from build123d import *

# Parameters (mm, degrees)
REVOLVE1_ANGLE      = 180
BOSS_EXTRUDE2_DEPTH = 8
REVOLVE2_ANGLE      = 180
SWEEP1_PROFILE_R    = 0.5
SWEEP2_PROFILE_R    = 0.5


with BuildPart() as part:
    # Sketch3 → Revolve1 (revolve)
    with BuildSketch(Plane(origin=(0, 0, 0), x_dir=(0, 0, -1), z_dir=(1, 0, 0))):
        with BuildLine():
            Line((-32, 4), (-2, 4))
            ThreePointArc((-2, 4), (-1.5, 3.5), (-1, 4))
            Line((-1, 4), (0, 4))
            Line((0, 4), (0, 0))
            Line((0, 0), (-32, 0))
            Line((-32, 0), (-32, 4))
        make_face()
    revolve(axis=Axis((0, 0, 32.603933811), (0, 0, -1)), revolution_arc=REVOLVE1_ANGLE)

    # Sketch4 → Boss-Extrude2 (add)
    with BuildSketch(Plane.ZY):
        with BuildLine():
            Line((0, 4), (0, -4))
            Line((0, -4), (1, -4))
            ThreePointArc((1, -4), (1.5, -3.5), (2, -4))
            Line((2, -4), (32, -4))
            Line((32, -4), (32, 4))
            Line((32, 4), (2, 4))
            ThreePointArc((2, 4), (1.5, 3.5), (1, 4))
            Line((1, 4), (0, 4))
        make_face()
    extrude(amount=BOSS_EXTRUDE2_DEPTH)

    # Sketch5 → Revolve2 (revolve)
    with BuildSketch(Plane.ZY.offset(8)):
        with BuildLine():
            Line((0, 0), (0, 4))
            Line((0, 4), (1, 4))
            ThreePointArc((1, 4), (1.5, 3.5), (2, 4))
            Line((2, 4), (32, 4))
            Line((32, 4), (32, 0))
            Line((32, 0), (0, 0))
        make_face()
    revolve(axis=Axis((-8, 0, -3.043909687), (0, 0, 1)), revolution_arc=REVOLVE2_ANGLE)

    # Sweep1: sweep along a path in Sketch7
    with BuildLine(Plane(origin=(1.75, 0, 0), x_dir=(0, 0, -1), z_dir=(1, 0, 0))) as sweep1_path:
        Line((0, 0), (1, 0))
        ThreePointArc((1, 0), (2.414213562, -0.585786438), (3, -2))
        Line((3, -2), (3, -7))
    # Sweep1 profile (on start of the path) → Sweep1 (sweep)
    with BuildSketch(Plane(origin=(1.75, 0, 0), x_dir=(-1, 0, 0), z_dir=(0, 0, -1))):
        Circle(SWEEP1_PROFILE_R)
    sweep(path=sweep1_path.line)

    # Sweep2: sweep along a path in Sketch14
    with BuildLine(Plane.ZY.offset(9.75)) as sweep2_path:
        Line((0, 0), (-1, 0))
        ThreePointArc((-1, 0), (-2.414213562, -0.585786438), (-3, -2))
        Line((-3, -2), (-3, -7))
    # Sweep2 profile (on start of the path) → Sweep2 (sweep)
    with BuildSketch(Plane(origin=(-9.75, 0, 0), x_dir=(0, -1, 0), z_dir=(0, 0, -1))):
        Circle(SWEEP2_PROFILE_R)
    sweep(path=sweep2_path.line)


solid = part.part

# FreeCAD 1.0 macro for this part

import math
import FreeCAD as App
import Part
import Sketcher

doc = App.newDocument("Part")
params = doc.addObject("Spreadsheet::Sheet", "Params")
for row, (alias, value) in enumerate([
    ("sketch1_radius", "0.5 mm"),
    ("sketch1_width", "4 mm"),
    ("sketch1_height", "30 mm"),
    ("sketch1_height2", "32 mm"),
    ("revolution_angle", "180 deg"),
    ("sketch2_radius", "0.5 mm"),
    ("sketch2_width", "8 mm"),
    ("sketch2_height", "1 mm"),
    ("sketch2_height2", "30 mm"),
    ("pad1_length", "8 mm"),
    ("sketch3_radius", "0.5 mm"),
    ("sketch3_width", "4 mm"),
    ("sketch3_height", "32 mm"),
    ("sketch3_height2", "30 mm"),
    ("revolution2_angle", "180 deg"),
    ("sketch4_diameter", "1 mm"),
    ("sketch5_radius", "2 mm"),
    ("sketch5_width", "5 mm"),
    ("sketch5_height", "1 mm"),
    ("sketch6_diameter", "1 mm"),
    ("sketch7_radius", "2 mm"),
    ("sketch7_width", "5 mm"),
    ("sketch7_height", "1 mm"),
], start=1):
    params.set(f"A{row}", alias)
    params.set(f"B{row}", "=" + value)
    params.setAlias(f"B{row}", alias)

body = doc.addObject("PartDesign::Body", "Body")

# Sketch on YZ plane
sketch1 = doc.addObject("Sketcher::SketchObject", "Sketch")
body.addObject(sketch1)
sketch1.AttachmentSupport = (doc.YZ_Plane, [""])
sketch1.MapMode = "FlatFace"
sketch1.addGeometry([
    Part.LineSegment(App.Vector(4, 2, 0), App.Vector(4, 32, 0)),  # 0
    Part.LineSegment(App.Vector(4, 32, 0), App.Vector(0, 32, 0)),  # 1
    Part.LineSegment(App.Vector(0, 32, 0), App.Vector(0, 0, 0)),  # 2
    Part.LineSegment(App.Vector(0, 0, 0), App.Vector(4, 0, 0)),  # 3
    Part.LineSegment(App.Vector(4, 0, 0), App.Vector(4, 1, 0)),  # 4
    Part.ArcOfCircle(Part.Circle(App.Vector(4, 1.5, 0), App.Vector(0, 0, 1), 0.5), math.radians(90), math.radians(270)),  # 5
], False)
sketch1.addConstraint([
    Sketcher.Constraint("Coincident", 0, 2, 1, 1),
    Sketcher.Constraint("Coincident", 1, 2, 2, 1),
    Sketcher.Constraint("Coincident", 2, 2, 3, 1),
    Sketcher.Constraint("Coincident", 3, 2, 4, 1),
    Sketcher.Constraint("Coincident", 4, 2, 5, 2),
    Sketcher.Constraint("Coincident", 5, 1, 0, 1),
    Sketcher.Constraint("Vertical", 0),
    Sketcher.Constraint("Horizontal", 1),
    Sketcher.Constraint("Vertical", 2),
    Sketcher.Constraint("Horizontal", 3),
    Sketcher.Constraint("Vertical", 4),
    Sketcher.Constraint("Coincident", 2, 2, -1, 1),
    Sketcher.Constraint("Vertical", 5, 3, 0, 2),
    Sketcher.Constraint("Vertical", 0, 2, 3, 2),
    Sketcher.Constraint("Radius", 5, 0.5),
    Sketcher.Constraint("DistanceX", 1, 2, 1, 1, 4.0),
    Sketcher.Constraint("DistanceY", 0, 1, 0, 2, 30.0),
    Sketcher.Constraint("DistanceY", 2, 2, 2, 1, 32.0),
])
sketch1.setExpression("Constraints[14]", "Params.sketch1_radius")
sketch1.setExpression("Constraints[15]", "Params.sketch1_width")
sketch1.setExpression("Constraints[16]", "Params.sketch1_height")
sketch1.setExpression("Constraints[17]", "Params.sketch1_height2")
revolution = doc.addObject("PartDesign::Revolution", "Revolution")
body.addObject(revolution)
revolution.Profile = sketch1
revolution.ReferenceAxis = (sketch1, ["V_Axis"])
revolution.setExpression("Angle", "Params.revolution_angle")
revolution.Reversed = True

# Sketch on YZ plane
sketch2 = doc.addObject("Sketcher::SketchObject", "Sketch001")
body.addObject(sketch2)
sketch2.AttachmentSupport = (doc.YZ_Plane, [""])
sketch2.MapMode = "FlatFace"
sketch2.addGeometry([
    Part.LineSegment(App.Vector(4, 0, 0), App.Vector(-4, 0, 0)),  # 0
    Part.LineSegment(App.Vector(-4, 0, 0), App.Vector(-4, 1, 0)),  # 1
    Part.ArcOfCircle(Part.Circle(App.Vector(-4, 1.5, 0), App.Vector(0, 0, 1), 0.5), math.radians(-90), math.radians(90)),  # 2
    Part.LineSegment(App.Vector(-4, 2, 0), App.Vector(-4, 32, 0)),  # 3
    Part.LineSegment(App.Vector(-4, 32, 0), App.Vector(4, 32, 0)),  # 4
    Part.LineSegment(App.Vector(4, 32, 0), App.Vector(4, 2, 0)),  # 5
    Part.ArcOfCircle(Part.Circle(App.Vector(4, 1.5, 0), App.Vector(0, 0, 1), 0.5), math.radians(90), math.radians(270)),  # 6
    Part.LineSegment(App.Vector(4, 1, 0), App.Vector(4, 0, 0)),  # 7
], False)
sketch2.addConstraint([
    Sketcher.Constraint("Coincident", 0, 2, 1, 1),
    Sketcher.Constraint("Coincident", 1, 2, 2, 1),
    Sketcher.Constraint("Coincident", 2, 2, 3, 1),
    Sketcher.Constraint("Coincident", 3, 2, 4, 1),
    Sketcher.Constraint("Coincident", 4, 2, 5, 1),
    Sketcher.Constraint("Coincident", 5, 2, 6, 1),
    Sketcher.Constraint("Coincident", 6, 2, 7, 1),
    Sketcher.Constraint("Coincident", 7, 2, 0, 1),
    Sketcher.Constraint("Horizontal", 0),
    Sketcher.Constraint("Vertical", 1),
    Sketcher.Constraint("Vertical", 3),
    Sketcher.Constraint("Horizontal", 4),
    Sketcher.Constraint("Vertical", 5),
    Sketcher.Constraint("Vertical", 7),
    Sketcher.Constraint("Equal", 2, 6),
    Sketcher.Constraint("Symmetric", 0, 2, 7, 2, -1, 1),
    Sketcher.Constraint("Symmetric", 2, 3, 6, 3, -2),
    Sketcher.Constraint("Vertical", 2, 3, 0, 2),
    Sketcher.Constraint("Vertical", 1, 2, 2, 2),
    Sketcher.Constraint("Vertical", 6, 3, 4, 2),
    Sketcher.Constraint("Radius", 2, 0.5),
    Sketcher.Constraint("DistanceX", 0, 2, 0, 1, 8.0),
    Sketcher.Constraint("DistanceY", 1, 1, 1, 2, 1.0),
    Sketcher.Constraint("DistanceY", 3, 1, 3, 2, 30.0),
])
sketch2.setExpression("Constraints[20]", "Params.sketch2_radius")
sketch2.setExpression("Constraints[21]", "Params.sketch2_width")
sketch2.setExpression("Constraints[22]", "Params.sketch2_height")
sketch2.setExpression("Constraints[23]", "Params.sketch2_height2")
pad1 = doc.addObject("PartDesign::Pad", "Pad")
body.addObject(pad1)
pad1.Profile = sketch2
pad1.setExpression("Length", "Params.pad1_length")
pad1.Reversed = True

# Sketch on YZ plane
sketch3 = doc.addObject("Sketcher::SketchObject", "Sketch002")
body.addObject(sketch3)
sketch3.AttachmentSupport = (doc.YZ_Plane, [""])
sketch3.MapMode = "FlatFace"
sketch3.AttachmentOffset = App.Placement(App.Vector(0, 0, -8), App.Rotation())
sketch3.addGeometry([
    Part.LineSegment(App.Vector(4, 0, 0), App.Vector(0, 0, 0)),  # 0
    Part.LineSegment(App.Vector(0, 0, 0), App.Vector(0, 32, 0)),  # 1
    Part.LineSegment(App.Vector(0, 32, 0), App.Vector(4, 32, 0)),  # 2
    Part.LineSegment(App.Vector(4, 32, 0), App.Vector(4, 2, 0)),  # 3
    Part.ArcOfCircle(Part.Circle(App.Vector(4, 1.5, 0), App.Vector(0, 0, 1), 0.5), math.radians(90), math.radians(270)),  # 4
    Part.LineSegment(App.Vector(4, 1, 0), App.Vector(4, 0, 0)),  # 5
], False)
sketch3.addConstraint([
    Sketcher.Constraint("Coincident", 0, 2, 1, 1),
    Sketcher.Constraint("Coincident", 1, 2, 2, 1),
    Sketcher.Constraint("Coincident", 2, 2, 3, 1),
    Sketcher.Constraint("Coincident", 3, 2, 4, 1),
    Sketcher.Constraint("Coincident", 4, 2, 5, 1),
    Sketcher.Constraint("Coincident", 5, 2, 0, 1),
    Sketcher.Constraint("Horizontal", 0),
    Sketcher.Constraint("Vertical", 1),
    Sketcher.Constraint("Horizontal", 2),
    Sketcher.Constraint("Vertical", 3),
    Sketcher.Constraint("Vertical", 5),
    Sketcher.Constraint("Coincident", 0, 2, -1, 1),
    Sketcher.Constraint("Vertical", 4, 3, 2, 2),
    Sketcher.Constraint("Vertical", 3, 2, 4, 2),
    Sketcher.Constraint("Radius", 4, 0.5),
    Sketcher.Constraint("DistanceX", 0, 2, 0, 1, 4.0),
    Sketcher.Constraint("DistanceY", 1, 1, 1, 2, 32.0),
    Sketcher.Constraint("DistanceY", 3, 2, 3, 1, 30.0),
])
sketch3.setExpression("Constraints[14]", "Params.sketch3_radius")
sketch3.setExpression("Constraints[15]", "Params.sketch3_width")
sketch3.setExpression("Constraints[16]", "Params.sketch3_height")
sketch3.setExpression("Constraints[17]", "Params.sketch3_height2")
revolution2 = doc.addObject("PartDesign::Revolution", "Revolution001")
body.addObject(revolution2)
revolution2.Profile = sketch3
revolution2.ReferenceAxis = (sketch3, ["V_Axis"])
revolution2.setExpression("Angle", "Params.revolution2_angle")

# Sketch on XY plane
sketch4 = doc.addObject("Sketcher::SketchObject", "Sketch003")
body.addObject(sketch4)
sketch4.AttachmentSupport = (doc.XY_Plane, [""])
sketch4.MapMode = "FlatFace"
sketch4.addGeometry(Part.Circle(App.Vector(1.8, 0, 0), App.Vector(0, 0, 1), 0.5), False)
sketch4.addConstraint([
    Sketcher.Constraint("PointOnObject", 0, 3, -1),
    Sketcher.Constraint("Diameter", 0, 1.0),
    Sketcher.Constraint("DistanceX", -1, 1, 0, 3, 1.75),
])
sketch4.setExpression("Constraints[1]", "Params.sketch4_diameter")

# Sketch on YZ plane
sketch5 = doc.addObject("Sketcher::SketchObject", "Sketch004")
body.addObject(sketch5)
sketch5.AttachmentSupport = (doc.YZ_Plane, [""])
sketch5.MapMode = "FlatFace"
sketch5.AttachmentOffset = App.Placement(App.Vector(0, 0, 1.75), App.Rotation())
sketch5.addGeometry([
    Part.LineSegment(App.Vector(0, 0, 0), App.Vector(0, -1, 0)),
    Part.ArcOfCircle(Part.Circle(App.Vector(-2, -1, 0), App.Vector(0, 0, 1), 2), math.radians(-90), math.radians(0)),
    Part.LineSegment(App.Vector(-2, -3, 0), App.Vector(-7, -3, 0)),
], False)
sketch5.addConstraint([
    Sketcher.Constraint("Tangent", 0, 2, 1, 2),
    Sketcher.Constraint("Tangent", 1, 1, 2, 1),
    Sketcher.Constraint("Vertical", 0),
    Sketcher.Constraint("Horizontal", 2),
    Sketcher.Constraint("Coincident", 0, 1, -1, 1),
    Sketcher.Constraint("Radius", 1, 2.0),
    Sketcher.Constraint("DistanceX", 2, 2, 2, 1, 5.0),
    Sketcher.Constraint("DistanceY", 0, 2, 0, 1, 1.0),
])
sketch5.setExpression("Constraints[5]", "Params.sketch5_radius")
sketch5.setExpression("Constraints[6]", "Params.sketch5_width")
sketch5.setExpression("Constraints[7]", "Params.sketch5_height")
doc.recompute()

additivepipe = doc.addObject("PartDesign::AdditivePipe", "AdditivePipe")
body.addObject(additivepipe)
additivepipe.Profile = sketch4
additivepipe.Spine = (sketch5, ["Edge1", "Edge2", "Edge3"])

# Sketch on XY plane
sketch6 = doc.addObject("Sketcher::SketchObject", "Sketch005")
body.addObject(sketch6)
sketch6.AttachmentSupport = (doc.XY_Plane, [""])
sketch6.MapMode = "FlatFace"
sketch6.addGeometry(Part.Circle(App.Vector(-9.8, 0, 0), App.Vector(0, 0, 1), 0.5), False)
sketch6.addConstraint([
    Sketcher.Constraint("PointOnObject", 0, 3, -1),
    Sketcher.Constraint("Diameter", 0, 1.0),
    Sketcher.Constraint("DistanceX", 0, 3, -1, 1, 9.75),
])
sketch6.setExpression("Constraints[1]", "Params.sketch6_diameter")

# Sketch on YZ plane
sketch7 = doc.addObject("Sketcher::SketchObject", "Sketch006")
body.addObject(sketch7)
sketch7.AttachmentSupport = (doc.YZ_Plane, [""])
sketch7.MapMode = "FlatFace"
sketch7.AttachmentOffset = App.Placement(App.Vector(0, 0, -9.75), App.Rotation())
sketch7.addGeometry([
    Part.LineSegment(App.Vector(0, 0, 0), App.Vector(0, -1, 0)),
    Part.ArcOfCircle(Part.Circle(App.Vector(-2, -1, 0), App.Vector(0, 0, 1), 2), math.radians(-90), math.radians(0)),
    Part.LineSegment(App.Vector(-2, -3, 0), App.Vector(-7, -3, 0)),
], False)
sketch7.addConstraint([
    Sketcher.Constraint("Tangent", 0, 2, 1, 2),
    Sketcher.Constraint("Tangent", 1, 1, 2, 1),
    Sketcher.Constraint("Vertical", 0),
    Sketcher.Constraint("Horizontal", 2),
    Sketcher.Constraint("Coincident", 0, 1, -1, 1),
    Sketcher.Constraint("Radius", 1, 2.0),
    Sketcher.Constraint("DistanceX", 2, 2, 2, 1, 5.0),
    Sketcher.Constraint("DistanceY", 0, 2, 0, 1, 1.0),
])
sketch7.setExpression("Constraints[5]", "Params.sketch7_radius")
sketch7.setExpression("Constraints[6]", "Params.sketch7_width")
sketch7.setExpression("Constraints[7]", "Params.sketch7_height")
doc.recompute()

additivepipe2 = doc.addObject("PartDesign::AdditivePipe", "AdditivePipe001")
body.addObject(additivepipe2)
additivepipe2.Profile = sketch6
additivepipe2.Spine = (sketch7, ["Edge1", "Edge2", "Edge3"])

doc.recompute()
